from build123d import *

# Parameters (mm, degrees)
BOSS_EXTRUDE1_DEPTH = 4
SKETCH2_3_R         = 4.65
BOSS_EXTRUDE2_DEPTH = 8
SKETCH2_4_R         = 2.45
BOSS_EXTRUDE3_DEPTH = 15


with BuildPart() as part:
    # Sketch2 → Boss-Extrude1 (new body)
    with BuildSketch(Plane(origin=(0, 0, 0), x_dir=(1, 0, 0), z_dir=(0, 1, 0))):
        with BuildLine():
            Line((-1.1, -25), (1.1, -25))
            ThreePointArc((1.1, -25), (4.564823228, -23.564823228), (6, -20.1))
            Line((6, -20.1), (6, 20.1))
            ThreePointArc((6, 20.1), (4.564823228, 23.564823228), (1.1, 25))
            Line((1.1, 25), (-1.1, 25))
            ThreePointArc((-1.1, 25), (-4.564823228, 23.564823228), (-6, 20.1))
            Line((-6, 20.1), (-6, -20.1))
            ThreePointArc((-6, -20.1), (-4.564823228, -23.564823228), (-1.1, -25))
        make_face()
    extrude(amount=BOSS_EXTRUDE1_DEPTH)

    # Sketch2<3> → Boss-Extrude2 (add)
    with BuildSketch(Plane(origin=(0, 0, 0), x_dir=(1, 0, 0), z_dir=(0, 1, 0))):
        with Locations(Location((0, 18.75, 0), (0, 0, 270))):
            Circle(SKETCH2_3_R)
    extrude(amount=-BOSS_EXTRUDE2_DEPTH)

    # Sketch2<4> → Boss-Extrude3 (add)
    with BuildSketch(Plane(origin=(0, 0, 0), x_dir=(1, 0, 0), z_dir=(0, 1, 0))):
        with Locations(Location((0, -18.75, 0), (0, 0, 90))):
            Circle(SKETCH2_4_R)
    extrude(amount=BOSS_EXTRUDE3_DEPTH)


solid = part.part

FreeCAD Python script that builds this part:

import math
import FreeCAD as App
import Part
import Sketcher
from FreeCAD import Vector

doc = App.newDocument("Part")
body = doc.addObject("PartDesign::Body", "Body")

# Sketch on XZ plane
sketch1 = body.newObject("Sketcher::SketchObject", "Sketch")
sketch1.AttachmentSupport = (doc.getObject("XZ_Plane"), [""])
sketch1.MapMode = "FlatFace"
sketch1.addGeometry(Part.LineSegment(Vector(-1.1, 25, 0), Vector(1.1, 25, 0)), False)
sketch1.addGeometry(Part.ArcOfCircle(Part.Circle(Vector(1.1, 20.1, 0), Vector(0, 0, 1), 4.9), math.radians(0), math.radians(90)), False)
sketch1.addGeometry(Part.LineSegment(Vector(6, 20.1, 0), Vector(6, -20.1, 0)), False)
sketch1.addGeometry(Part.ArcOfCircle(Part.Circle(Vector(1.1, -20.1, 0), Vector(0, 0, 1), 4.9), math.radians(-90), math.radians(0)), False)
sketch1.addGeometry(Part.LineSegment(Vector(1.1, -25, 0), Vector(-1.1, -25, 0)), False)
sketch1.addGeometry(Part.ArcOfCircle(Part.Circle(Vector(-1.1, -20.1, 0), Vector(0, 0, 1), 4.9), math.radians(180), math.radians(270)), False)
sketch1.addGeometry(Part.LineSegment(Vector(-6, -20.1, 0), Vector(-6, 20.1, 0)), False)
sketch1.addGeometry(Part.ArcOfCircle(Part.Circle(Vector(-1.1, 20.1, 0), Vector(0, 0, 1), 4.9), math.radians(90), math.radians(180)), False)
sketch1.addConstraint(Sketcher.Constraint("Tangent", 0, 2, 1, 2))
sketch1.addConstraint(Sketcher.Constraint("Tangent", 1, 1, 2, 1))
sketch1.addConstraint(Sketcher.Constraint("Tangent", 2, 2, 3, 2))
sketch1.addConstraint(Sketcher.Constraint("Tangent", 3, 1, 4, 1))
sketch1.addConstraint(Sketcher.Constraint("Tangent", 4, 2, 5, 2))
sketch1.addConstraint(Sketcher.Constraint("Tangent", 5, 1, 6, 1))
sketch1.addConstraint(Sketcher.Constraint("Tangent", 6, 2, 7, 2))
sketch1.addConstraint(Sketcher.Constraint("Tangent", 7, 1, 0, 1))
sketch1.addConstraint(Sketcher.Constraint("Horizontal", 0))
sketch1.addConstraint(Sketcher.Constraint("Vertical", 2))
sketch1.addConstraint(Sketcher.Constraint("Horizontal", 4))
sketch1.addConstraint(Sketcher.Constraint("Vertical", 6))
sketch1.addConstraint(Sketcher.Constraint("Equal", 1, 3))
sketch1.addConstraint(Sketcher.Constraint("Equal", 3, 5))
sketch1.addConstraint(Sketcher.Constraint("Equal", 5, 7))
sketch1.addConstraint(Sketcher.Constraint("Symmetric", 1, 3, 5, 3, -1, 1))
sketch1.addConstraint(Sketcher.Constraint("Radius", 1, 4.9))
sketch1.addConstraint(Sketcher.Constraint("DistanceX", 0, 1, 0, 2, 2.2))
sketch1.addConstraint(Sketcher.Constraint("DistanceY", 2, 2, 2, 1, 40.2))
pad1 = body.newObject("PartDesign::Pad", "Pad")
pad1.Profile = sketch1
pad1.Length = 4
pad1.Reversed = True

# Sketch on XZ plane
sketch2 = body.newObject("Sketcher::SketchObject", "Sketch001")
sketch2.AttachmentSupport = (doc.getObject("XZ_Plane"), [""])
sketch2.MapMode = "FlatFace"
sketch2.addGeometry(Part.Circle(Vector(0, -18.8, 0), Vector(0, 0, 1), 4.7), False)
sketch2.addConstraint(Sketcher.Constraint("PointOnObject", 0, 3, -2))
sketch2.addConstraint(Sketcher.Constraint("Diameter", 0, 9.3))
sketch2.addConstraint(Sketcher.Constraint("DistanceY", 0, 3, -1, 1, 18.75))
pad2 = body.newObject("PartDesign::Pad", "Pad001")
pad2.Profile = sketch2
pad2.Length = 8

# Sketch on XZ plane
sketch3 = body.newObject("Sketcher::SketchObject", "Sketch002")
sketch3.AttachmentSupport = (doc.getObject("XZ_Plane"), [""])
sketch3.MapMode = "FlatFace"
sketch3.addGeometry(Part.Circle(Vector(0, 18.8, 0), Vector(0, 0, 1), 2.5), False)
sketch3.addConstraint(Sketcher.Constraint("PointOnObject", 0, 3, -2))
sketch3.addConstraint(Sketcher.Constraint("Diameter", 0, 4.9))
sketch3.addConstraint(Sketcher.Constraint("DistanceY", -1, 1, 0, 3, 18.75))
pad3 = body.newObject("PartDesign::Pad", "Pad002")
pad3.Profile = sketch3
pad3.Length = 15
pad3.Reversed = True

doc.recompute()
